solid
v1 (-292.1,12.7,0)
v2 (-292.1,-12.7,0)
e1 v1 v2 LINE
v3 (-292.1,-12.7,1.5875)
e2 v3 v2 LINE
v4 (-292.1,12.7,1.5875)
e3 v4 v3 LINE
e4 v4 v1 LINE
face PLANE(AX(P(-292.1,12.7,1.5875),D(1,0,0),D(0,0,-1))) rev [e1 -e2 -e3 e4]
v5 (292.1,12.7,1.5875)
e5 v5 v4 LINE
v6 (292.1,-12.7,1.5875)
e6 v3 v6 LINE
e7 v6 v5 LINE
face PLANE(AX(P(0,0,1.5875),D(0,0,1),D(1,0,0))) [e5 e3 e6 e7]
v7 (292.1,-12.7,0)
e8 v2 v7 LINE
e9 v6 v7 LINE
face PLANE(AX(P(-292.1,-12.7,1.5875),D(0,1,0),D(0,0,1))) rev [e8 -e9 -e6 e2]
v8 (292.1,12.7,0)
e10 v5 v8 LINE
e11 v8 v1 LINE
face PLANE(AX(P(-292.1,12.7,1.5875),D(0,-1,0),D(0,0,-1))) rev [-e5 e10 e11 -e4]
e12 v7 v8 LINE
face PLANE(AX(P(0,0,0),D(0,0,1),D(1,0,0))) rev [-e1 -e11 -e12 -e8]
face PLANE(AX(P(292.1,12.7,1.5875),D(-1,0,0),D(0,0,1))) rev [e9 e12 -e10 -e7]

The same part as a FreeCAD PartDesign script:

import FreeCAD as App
import Part
import Sketcher
Q = App.Units.Quantity


def add_polygon(sketch, points):
    """Adds a closed chain of lines whose ends are joined by coincident constraints."""
    first, n = sketch.GeometryCount, len(points)
    for a, b in zip(points, points[1:] + points[:1]):
        sketch.addGeometry(Part.LineSegment(App.Vector(*a, 0), App.Vector(*b, 0)), False)
    for i in range(n):
        sketch.addConstraint(Sketcher.Constraint("Coincident", first + i, 2, first + (i + 1) % n, 1))

doc = App.newDocument("Part")
body = doc.addObject("PartDesign::Body", "Body")

sketch1 = body.newObject("Sketcher::SketchObject", "Sketch")
sketch1.AttachmentSupport = (doc.getObject("XY_Plane"), [""])
sketch1.MapMode = "FlatFace"
add_polygon(sketch1, [(-292, 13), (-292, -13), (292, -13), (292, 13)])
sketch1.addConstraint(Sketcher.Constraint("Vertical", 0))
sketch1.addConstraint(Sketcher.Constraint("Horizontal", 1))
sketch1.addConstraint(Sketcher.Constraint("Vertical", 2))
sketch1.addConstraint(Sketcher.Constraint("Horizontal", 3))
sketch1.addConstraint(Sketcher.Constraint("Symmetric", 0, 2, 2, 2, -1, 1))
sketch1.addConstraint(Sketcher.Constraint("DistanceX", 1, 1, 1, 2, Q("23 in")))
sketch1.addConstraint(Sketcher.Constraint("DistanceY", 0, 2, 0, 1, Q("1 in")))
pad1 = body.newObject("PartDesign::Pad", "Pad")
pad1.Profile = sketch1
pad1.Length = Q("0.0625 in")

doc.recompute()
